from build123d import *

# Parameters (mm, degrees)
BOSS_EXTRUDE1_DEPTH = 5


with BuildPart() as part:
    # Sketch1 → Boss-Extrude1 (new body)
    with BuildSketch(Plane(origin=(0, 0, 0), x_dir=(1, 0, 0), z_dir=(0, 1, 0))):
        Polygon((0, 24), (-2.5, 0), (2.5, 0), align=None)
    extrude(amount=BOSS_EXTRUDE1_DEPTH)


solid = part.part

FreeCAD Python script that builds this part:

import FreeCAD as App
import Part
import Sketcher
from FreeCAD import Vector
Q = App.Units.Quantity


def add_polygon(sketch, points):
    """Adds a closed chain of lines whose ends are joined by coincident constraints."""
    first, n = sketch.GeometryCount, len(points)
    for a, b in zip(points, points[1:] + points[:1]):
        sketch.addGeometry(Part.LineSegment(App.Vector(*a, 0), App.Vector(*b, 0)), False)
    for i in range(n):
        sketch.addConstraint(Sketcher.Constraint("Coincident", first + i, 2, first + (i + 1) % n, 1))

doc = App.newDocument("Part")
body = doc.addObject("PartDesign::Body", "Body")

# Sketch on XZ plane
sketch1 = doc.addObject("Sketcher::SketchObject", "Sketch")
body.addObject(sketch1)
sketch1.AttachmentSupport = (doc.XZ_Plane, [""])
sketch1.MapMode = "FlatFace"
add_polygon(sketch1, [(0, -24), (-2, 0), (2, 0)])  # lines 0-2
sketch1.addConstraint(Sketcher.Constraint("Horizontal", 1))
sketch1.addConstraint(Sketcher.Constraint("Symmetric", 0, 2, 1, 2, -1, 1))
sketch1.addConstraint(Sketcher.Constraint("PointOnObject", 2, 2, -2))
sketch1.addConstraint(Sketcher.Constraint("DistanceX", 1, 1, 1, 2, Q("5 mm")))
sketch1.addConstraint(Sketcher.Constraint("DistanceY", 2, 2, -1, 1, Q("24 mm")))
pad1 = doc.addObject("PartDesign::Pad", "Pad")
body.addObject(pad1)
pad1.Profile = sketch1
pad1.Length = 5
pad1.Reversed = True

doc.recompute()
